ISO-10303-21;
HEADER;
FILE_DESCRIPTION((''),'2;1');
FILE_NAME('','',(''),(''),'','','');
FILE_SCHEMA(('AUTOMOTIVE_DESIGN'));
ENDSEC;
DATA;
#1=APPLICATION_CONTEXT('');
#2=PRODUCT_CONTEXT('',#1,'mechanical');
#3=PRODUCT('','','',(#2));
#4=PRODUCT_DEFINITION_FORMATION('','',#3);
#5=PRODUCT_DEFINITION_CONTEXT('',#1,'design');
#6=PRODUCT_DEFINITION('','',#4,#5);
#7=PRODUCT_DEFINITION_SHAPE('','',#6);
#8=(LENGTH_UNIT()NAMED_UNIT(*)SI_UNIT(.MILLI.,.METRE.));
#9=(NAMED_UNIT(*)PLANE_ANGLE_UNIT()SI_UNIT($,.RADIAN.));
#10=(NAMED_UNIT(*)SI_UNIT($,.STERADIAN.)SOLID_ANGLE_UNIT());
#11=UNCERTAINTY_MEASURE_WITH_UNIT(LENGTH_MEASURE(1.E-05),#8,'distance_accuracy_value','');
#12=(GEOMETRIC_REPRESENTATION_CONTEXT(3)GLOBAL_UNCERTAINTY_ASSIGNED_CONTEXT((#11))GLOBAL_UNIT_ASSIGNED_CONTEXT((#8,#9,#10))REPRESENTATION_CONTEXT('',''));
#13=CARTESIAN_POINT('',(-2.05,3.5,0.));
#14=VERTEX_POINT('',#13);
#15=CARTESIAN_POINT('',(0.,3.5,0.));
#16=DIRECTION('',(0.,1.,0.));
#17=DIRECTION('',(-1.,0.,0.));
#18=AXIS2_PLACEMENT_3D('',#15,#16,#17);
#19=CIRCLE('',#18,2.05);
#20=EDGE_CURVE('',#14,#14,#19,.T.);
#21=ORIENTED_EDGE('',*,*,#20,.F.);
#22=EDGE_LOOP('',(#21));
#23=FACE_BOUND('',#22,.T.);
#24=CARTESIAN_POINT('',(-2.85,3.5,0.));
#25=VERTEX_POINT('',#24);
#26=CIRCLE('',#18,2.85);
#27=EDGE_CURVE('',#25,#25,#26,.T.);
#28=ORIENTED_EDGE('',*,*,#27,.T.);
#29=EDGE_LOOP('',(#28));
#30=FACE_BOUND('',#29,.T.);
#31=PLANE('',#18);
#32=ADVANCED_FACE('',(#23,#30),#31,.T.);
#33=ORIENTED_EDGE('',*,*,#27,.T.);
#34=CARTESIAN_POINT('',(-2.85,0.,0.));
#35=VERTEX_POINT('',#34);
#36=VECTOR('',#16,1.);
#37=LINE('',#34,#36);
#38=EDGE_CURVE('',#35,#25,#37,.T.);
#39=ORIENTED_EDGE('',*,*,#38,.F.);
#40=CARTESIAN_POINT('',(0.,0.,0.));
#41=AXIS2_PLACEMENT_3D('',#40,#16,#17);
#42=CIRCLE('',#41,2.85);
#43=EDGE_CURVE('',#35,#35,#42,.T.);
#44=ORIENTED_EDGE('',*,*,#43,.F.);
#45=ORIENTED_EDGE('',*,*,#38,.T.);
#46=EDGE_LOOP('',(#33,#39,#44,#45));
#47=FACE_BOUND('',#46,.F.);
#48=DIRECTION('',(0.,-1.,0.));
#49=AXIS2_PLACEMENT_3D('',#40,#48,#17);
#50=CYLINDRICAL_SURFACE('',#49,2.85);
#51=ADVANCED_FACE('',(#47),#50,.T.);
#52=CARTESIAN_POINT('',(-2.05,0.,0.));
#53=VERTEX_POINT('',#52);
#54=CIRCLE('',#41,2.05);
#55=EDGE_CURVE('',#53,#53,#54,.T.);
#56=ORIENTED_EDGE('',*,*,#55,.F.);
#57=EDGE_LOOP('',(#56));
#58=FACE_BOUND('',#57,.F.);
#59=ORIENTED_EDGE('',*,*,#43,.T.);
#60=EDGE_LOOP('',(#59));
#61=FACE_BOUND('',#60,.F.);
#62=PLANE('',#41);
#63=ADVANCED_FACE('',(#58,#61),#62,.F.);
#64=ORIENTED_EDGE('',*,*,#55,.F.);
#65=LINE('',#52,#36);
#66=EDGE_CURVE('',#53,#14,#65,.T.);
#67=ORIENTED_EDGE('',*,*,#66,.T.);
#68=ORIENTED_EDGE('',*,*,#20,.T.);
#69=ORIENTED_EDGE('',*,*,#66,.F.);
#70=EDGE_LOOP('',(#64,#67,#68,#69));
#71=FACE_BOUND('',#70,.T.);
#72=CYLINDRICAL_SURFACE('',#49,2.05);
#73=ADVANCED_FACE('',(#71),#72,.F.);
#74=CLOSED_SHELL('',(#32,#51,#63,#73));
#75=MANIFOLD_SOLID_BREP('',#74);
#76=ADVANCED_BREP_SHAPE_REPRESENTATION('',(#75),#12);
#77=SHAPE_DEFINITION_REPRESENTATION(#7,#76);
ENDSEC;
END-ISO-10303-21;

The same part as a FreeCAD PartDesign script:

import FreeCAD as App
import Part
import Sketcher

doc = App.newDocument("Part")
params = doc.addObject("Spreadsheet::Sheet", "Params")
for row, (alias, value) in enumerate([
    ("sketch1_diameter", "5.7 mm"),
    ("sketch1_diameter2", "4.1 mm"),
    ("pad1_length", "3.5 mm"),
], start=1):
    params.set(f"A{row}", alias)
    params.set(f"B{row}", "=" + value)
    params.setAlias(f"B{row}", alias)

body = doc.addObject("PartDesign::Body", "Body")

# Sketch on XZ plane
sketch1 = doc.addObject("Sketcher::SketchObject", "Sketch")
body.addObject(sketch1)
sketch1.AttachmentSupport = (doc.XZ_Plane, [""])
sketch1.MapMode = "FlatFace"
sketch1.addGeometry([
    Part.Circle(App.Vector(0, 0, 0), App.Vector(0, 0, 1), 2.85),
    Part.Circle(App.Vector(0, 0, 0), App.Vector(0, 0, 1), 2.05),
], False)
sketch1.addConstraint([
    Sketcher.Constraint("Coincident", 0, 3, -1, 1),
    Sketcher.Constraint("Coincident", 1, 3, -1, 1),
    Sketcher.Constraint("Diameter", 0, 5.7),
    Sketcher.Constraint("Diameter", 1, 4.1),
])
sketch1.setExpression("Constraints[2]", "Params.sketch1_diameter")
sketch1.setExpression("Constraints[3]", "Params.sketch1_diameter2")
pad1 = doc.addObject("PartDesign::Pad", "Pad")
body.addObject(pad1)
pad1.Profile = sketch1
pad1.setExpression("Length", "Params.pad1_length")
pad1.Reversed = True

doc.recompute()
